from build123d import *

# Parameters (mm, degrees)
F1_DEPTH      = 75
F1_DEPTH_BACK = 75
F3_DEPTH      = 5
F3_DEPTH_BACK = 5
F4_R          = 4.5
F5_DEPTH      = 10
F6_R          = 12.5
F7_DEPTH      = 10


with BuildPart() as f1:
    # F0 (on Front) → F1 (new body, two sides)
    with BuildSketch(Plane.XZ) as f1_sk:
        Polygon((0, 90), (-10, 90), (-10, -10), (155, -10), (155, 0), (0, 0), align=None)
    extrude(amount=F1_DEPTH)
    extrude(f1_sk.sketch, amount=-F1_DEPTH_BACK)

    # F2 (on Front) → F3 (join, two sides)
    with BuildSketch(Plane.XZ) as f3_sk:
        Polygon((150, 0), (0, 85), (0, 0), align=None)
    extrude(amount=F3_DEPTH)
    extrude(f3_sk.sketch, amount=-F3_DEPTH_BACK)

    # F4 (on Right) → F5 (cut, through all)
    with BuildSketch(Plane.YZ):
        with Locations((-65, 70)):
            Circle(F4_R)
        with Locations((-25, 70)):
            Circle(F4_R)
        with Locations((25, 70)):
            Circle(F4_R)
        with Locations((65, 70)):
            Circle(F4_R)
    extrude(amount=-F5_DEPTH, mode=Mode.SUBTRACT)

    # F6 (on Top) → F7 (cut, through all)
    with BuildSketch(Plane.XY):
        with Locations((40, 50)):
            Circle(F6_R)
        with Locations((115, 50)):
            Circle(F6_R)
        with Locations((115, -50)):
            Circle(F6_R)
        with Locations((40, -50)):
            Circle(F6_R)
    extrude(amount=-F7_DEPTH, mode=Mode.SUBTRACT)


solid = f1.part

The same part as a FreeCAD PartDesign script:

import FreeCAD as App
import Part
import Sketcher

V = App.Vector


def add_polygon(sketch, points):
    """Adds a closed chain of lines whose ends are joined by coincident constraints."""
    first, n = sketch.GeometryCount, len(points)
    for a, b in zip(points, points[1:] + points[:1]):
        sketch.addGeometry(Part.LineSegment(App.Vector(*a, 0), App.Vector(*b, 0)), False)
    for i in range(n):
        sketch.addConstraint(Sketcher.Constraint("Coincident", first + i, 2, first + (i + 1) % n, 1))

doc = App.newDocument("Part")
params = doc.addObject("Spreadsheet::Sheet", "Params")
for row, (alias, value) in enumerate([
    ("sketch1_width", "10 mm"),
    ("sketch1_width2", "165 mm"),
    ("sketch1_height", "100 mm"),
    ("pad1_length", "75 mm"),
    ("pad1_length2", "75 mm"),
    ("sketch2_width", "150 mm"),
    ("sketch2_height", "85 mm"),
    ("pad2_length", "5 mm"),
    ("pad2_length2", "5 mm"),
    ("sketch3_diameter", "9 mm"),
    ("sketch4_diameter", "25 mm"),
], start=1):
    params.set(f"A{row}", alias)
    params.set(f"B{row}", "=" + value)
    params.setAlias(f"B{row}", alias)

body = doc.addObject("PartDesign::Body", "Body")

# Sketch on XZ plane
sketch1 = body.newObject("Sketcher::SketchObject", "Sketch")
sketch1.AttachmentSupport = (doc.getObject("XZ_Plane"), [""])
sketch1.MapMode = "FlatFace"
add_polygon(sketch1, [(0, 90), (-10, 90), (-10, -10), (155, -10), (155, 0), (0, 0)])  # lines 0-5
sketch1.addConstraint([
    Sketcher.Constraint("Horizontal", 0),
    Sketcher.Constraint("Vertical", 1),
    Sketcher.Constraint("Horizontal", 2),
    Sketcher.Constraint("Vertical", 3),
    Sketcher.Constraint("Horizontal", 4),
    Sketcher.Constraint("Vertical", 5),
    Sketcher.Constraint("Coincident", 4, 2, -1, 1),
    Sketcher.Constraint("Equal", 0, 3),
    Sketcher.Constraint("DistanceX", 0, 2, 0, 1, 10.0),
    Sketcher.Constraint("DistanceX", 2, 1, 2, 2, 165.0),
    Sketcher.Constraint("DistanceY", 1, 2, 1, 1, 100.0),
])
sketch1.setExpression("Constraints[14]", "Params.sketch1_width")
sketch1.setExpression("Constraints[15]", "Params.sketch1_width2")
sketch1.setExpression("Constraints[16]", "Params.sketch1_height")
pad1 = body.newObject("PartDesign::Pad", "Pad")
pad1.Profile = sketch1
pad1.Type = "TwoLengths"
pad1.setExpression("Length", "Params.pad1_length")
pad1.setExpression("Length2", "Params.pad1_length2")

# Sketch on XZ plane
sketch2 = body.newObject("Sketcher::SketchObject", "Sketch001")
sketch2.AttachmentSupport = (doc.getObject("XZ_Plane"), [""])
sketch2.MapMode = "FlatFace"
add_polygon(sketch2, [(150, 0), (0, 85), (0, 0)])  # lines 0-2
sketch2.addConstraint([
    Sketcher.Constraint("Vertical", 1),
    Sketcher.Constraint("Horizontal", 2),
    Sketcher.Constraint("Coincident", 1, 2, -1, 1),
    Sketcher.Constraint("DistanceX", 2, 1, 2, 2, 150.0),
    Sketcher.Constraint("DistanceY", 1, 2, 1, 1, 85.0),
])
sketch2.setExpression("Constraints[6]", "Params.sketch2_width")
sketch2.setExpression("Constraints[7]", "Params.sketch2_height")
pad2 = body.newObject("PartDesign::Pad", "Pad001")
pad2.Profile = sketch2
pad2.Type = "TwoLengths"
pad2.setExpression("Length", "Params.pad2_length")
pad2.setExpression("Length2", "Params.pad2_length2")

# Sketch on YZ plane
sketch3 = body.newObject("Sketcher::SketchObject", "Sketch002")
sketch3.AttachmentSupport = (doc.getObject("YZ_Plane"), [""])
sketch3.MapMode = "FlatFace"
sketch3.addGeometry([
    Part.Circle(V(-65, 70, 0), V(0, 0, 1), 4.5),
    Part.Circle(V(-25, 70, 0), V(0, 0, 1), 4.5),
    Part.Circle(V(25, 70, 0), V(0, 0, 1), 4.5),
    Part.Circle(V(65, 70, 0), V(0, 0, 1), 4.5),
], False)
sketch3.addConstraint([
    Sketcher.Constraint("Equal", 0, 1),
    Sketcher.Constraint("Equal", 1, 2),
    Sketcher.Constraint("Equal", 2, 3),
    Sketcher.Constraint("Symmetric", 1, 3, 2, 3, -2),
    Sketcher.Constraint("Symmetric", 0, 3, 3, 3, -2),
    Sketcher.Constraint("Horizontal", 0, 3, 1, 3),
    Sketcher.Constraint("Diameter", 0, 9.0),
    Sketcher.Constraint("DistanceX", 0, 3, -1, 1, 65.0),
    Sketcher.Constraint("DistanceY", -1, 1, 0, 3, 70.0),
    Sketcher.Constraint("DistanceX", 1, 3, -1, 1, 25.0),
])
sketch3.setExpression("Constraints[6]", "Params.sketch3_diameter")
pocket1 = body.newObject("PartDesign::Pocket", "Pocket")
pocket1.Profile = sketch3
pocket1.Type = "ThroughAll"

# Sketch on XY plane
sketch4 = body.newObject("Sketcher::SketchObject", "Sketch003")
sketch4.AttachmentSupport = (doc.getObject("XY_Plane"), [""])
sketch4.MapMode = "FlatFace"
sketch4.addGeometry([
    Part.Circle(V(40, 50, 0), V(0, 0, 1), 12),
    Part.Circle(V(115, 50, 0), V(0, 0, 1), 12),
    Part.Circle(V(115, -50, 0), V(0, 0, 1), 12),
    Part.Circle(V(40, -50, 0), V(0, 0, 1), 12),
], False)
sketch4.addConstraint([
    Sketcher.Constraint("Equal", 0, 1),
    Sketcher.Constraint("Equal", 1, 2),
    Sketcher.Constraint("Equal", 2, 3),
    Sketcher.Constraint("Symmetric", 1, 3, 2, 3, -1),
    Sketcher.Constraint("Symmetric", 0, 3, 3, 3, -1),
    Sketcher.Constraint("Horizontal", 0, 3, 1, 3),
    Sketcher.Constraint("Diameter", 0, 25.0),
    Sketcher.Constraint("DistanceX", -1, 1, 0, 3, 40.0),
    Sketcher.Constraint("DistanceY", -1, 1, 0, 3, 50.0),
    Sketcher.Constraint("DistanceX", -1, 1, 1, 3, 115.0),
])
sketch4.setExpression("Constraints[6]", "Params.sketch4_diameter")
pocket2 = body.newObject("PartDesign::Pocket", "Pocket001")
pocket2.Profile = sketch4
pocket2.Type = "ThroughAll"

doc.recompute()
